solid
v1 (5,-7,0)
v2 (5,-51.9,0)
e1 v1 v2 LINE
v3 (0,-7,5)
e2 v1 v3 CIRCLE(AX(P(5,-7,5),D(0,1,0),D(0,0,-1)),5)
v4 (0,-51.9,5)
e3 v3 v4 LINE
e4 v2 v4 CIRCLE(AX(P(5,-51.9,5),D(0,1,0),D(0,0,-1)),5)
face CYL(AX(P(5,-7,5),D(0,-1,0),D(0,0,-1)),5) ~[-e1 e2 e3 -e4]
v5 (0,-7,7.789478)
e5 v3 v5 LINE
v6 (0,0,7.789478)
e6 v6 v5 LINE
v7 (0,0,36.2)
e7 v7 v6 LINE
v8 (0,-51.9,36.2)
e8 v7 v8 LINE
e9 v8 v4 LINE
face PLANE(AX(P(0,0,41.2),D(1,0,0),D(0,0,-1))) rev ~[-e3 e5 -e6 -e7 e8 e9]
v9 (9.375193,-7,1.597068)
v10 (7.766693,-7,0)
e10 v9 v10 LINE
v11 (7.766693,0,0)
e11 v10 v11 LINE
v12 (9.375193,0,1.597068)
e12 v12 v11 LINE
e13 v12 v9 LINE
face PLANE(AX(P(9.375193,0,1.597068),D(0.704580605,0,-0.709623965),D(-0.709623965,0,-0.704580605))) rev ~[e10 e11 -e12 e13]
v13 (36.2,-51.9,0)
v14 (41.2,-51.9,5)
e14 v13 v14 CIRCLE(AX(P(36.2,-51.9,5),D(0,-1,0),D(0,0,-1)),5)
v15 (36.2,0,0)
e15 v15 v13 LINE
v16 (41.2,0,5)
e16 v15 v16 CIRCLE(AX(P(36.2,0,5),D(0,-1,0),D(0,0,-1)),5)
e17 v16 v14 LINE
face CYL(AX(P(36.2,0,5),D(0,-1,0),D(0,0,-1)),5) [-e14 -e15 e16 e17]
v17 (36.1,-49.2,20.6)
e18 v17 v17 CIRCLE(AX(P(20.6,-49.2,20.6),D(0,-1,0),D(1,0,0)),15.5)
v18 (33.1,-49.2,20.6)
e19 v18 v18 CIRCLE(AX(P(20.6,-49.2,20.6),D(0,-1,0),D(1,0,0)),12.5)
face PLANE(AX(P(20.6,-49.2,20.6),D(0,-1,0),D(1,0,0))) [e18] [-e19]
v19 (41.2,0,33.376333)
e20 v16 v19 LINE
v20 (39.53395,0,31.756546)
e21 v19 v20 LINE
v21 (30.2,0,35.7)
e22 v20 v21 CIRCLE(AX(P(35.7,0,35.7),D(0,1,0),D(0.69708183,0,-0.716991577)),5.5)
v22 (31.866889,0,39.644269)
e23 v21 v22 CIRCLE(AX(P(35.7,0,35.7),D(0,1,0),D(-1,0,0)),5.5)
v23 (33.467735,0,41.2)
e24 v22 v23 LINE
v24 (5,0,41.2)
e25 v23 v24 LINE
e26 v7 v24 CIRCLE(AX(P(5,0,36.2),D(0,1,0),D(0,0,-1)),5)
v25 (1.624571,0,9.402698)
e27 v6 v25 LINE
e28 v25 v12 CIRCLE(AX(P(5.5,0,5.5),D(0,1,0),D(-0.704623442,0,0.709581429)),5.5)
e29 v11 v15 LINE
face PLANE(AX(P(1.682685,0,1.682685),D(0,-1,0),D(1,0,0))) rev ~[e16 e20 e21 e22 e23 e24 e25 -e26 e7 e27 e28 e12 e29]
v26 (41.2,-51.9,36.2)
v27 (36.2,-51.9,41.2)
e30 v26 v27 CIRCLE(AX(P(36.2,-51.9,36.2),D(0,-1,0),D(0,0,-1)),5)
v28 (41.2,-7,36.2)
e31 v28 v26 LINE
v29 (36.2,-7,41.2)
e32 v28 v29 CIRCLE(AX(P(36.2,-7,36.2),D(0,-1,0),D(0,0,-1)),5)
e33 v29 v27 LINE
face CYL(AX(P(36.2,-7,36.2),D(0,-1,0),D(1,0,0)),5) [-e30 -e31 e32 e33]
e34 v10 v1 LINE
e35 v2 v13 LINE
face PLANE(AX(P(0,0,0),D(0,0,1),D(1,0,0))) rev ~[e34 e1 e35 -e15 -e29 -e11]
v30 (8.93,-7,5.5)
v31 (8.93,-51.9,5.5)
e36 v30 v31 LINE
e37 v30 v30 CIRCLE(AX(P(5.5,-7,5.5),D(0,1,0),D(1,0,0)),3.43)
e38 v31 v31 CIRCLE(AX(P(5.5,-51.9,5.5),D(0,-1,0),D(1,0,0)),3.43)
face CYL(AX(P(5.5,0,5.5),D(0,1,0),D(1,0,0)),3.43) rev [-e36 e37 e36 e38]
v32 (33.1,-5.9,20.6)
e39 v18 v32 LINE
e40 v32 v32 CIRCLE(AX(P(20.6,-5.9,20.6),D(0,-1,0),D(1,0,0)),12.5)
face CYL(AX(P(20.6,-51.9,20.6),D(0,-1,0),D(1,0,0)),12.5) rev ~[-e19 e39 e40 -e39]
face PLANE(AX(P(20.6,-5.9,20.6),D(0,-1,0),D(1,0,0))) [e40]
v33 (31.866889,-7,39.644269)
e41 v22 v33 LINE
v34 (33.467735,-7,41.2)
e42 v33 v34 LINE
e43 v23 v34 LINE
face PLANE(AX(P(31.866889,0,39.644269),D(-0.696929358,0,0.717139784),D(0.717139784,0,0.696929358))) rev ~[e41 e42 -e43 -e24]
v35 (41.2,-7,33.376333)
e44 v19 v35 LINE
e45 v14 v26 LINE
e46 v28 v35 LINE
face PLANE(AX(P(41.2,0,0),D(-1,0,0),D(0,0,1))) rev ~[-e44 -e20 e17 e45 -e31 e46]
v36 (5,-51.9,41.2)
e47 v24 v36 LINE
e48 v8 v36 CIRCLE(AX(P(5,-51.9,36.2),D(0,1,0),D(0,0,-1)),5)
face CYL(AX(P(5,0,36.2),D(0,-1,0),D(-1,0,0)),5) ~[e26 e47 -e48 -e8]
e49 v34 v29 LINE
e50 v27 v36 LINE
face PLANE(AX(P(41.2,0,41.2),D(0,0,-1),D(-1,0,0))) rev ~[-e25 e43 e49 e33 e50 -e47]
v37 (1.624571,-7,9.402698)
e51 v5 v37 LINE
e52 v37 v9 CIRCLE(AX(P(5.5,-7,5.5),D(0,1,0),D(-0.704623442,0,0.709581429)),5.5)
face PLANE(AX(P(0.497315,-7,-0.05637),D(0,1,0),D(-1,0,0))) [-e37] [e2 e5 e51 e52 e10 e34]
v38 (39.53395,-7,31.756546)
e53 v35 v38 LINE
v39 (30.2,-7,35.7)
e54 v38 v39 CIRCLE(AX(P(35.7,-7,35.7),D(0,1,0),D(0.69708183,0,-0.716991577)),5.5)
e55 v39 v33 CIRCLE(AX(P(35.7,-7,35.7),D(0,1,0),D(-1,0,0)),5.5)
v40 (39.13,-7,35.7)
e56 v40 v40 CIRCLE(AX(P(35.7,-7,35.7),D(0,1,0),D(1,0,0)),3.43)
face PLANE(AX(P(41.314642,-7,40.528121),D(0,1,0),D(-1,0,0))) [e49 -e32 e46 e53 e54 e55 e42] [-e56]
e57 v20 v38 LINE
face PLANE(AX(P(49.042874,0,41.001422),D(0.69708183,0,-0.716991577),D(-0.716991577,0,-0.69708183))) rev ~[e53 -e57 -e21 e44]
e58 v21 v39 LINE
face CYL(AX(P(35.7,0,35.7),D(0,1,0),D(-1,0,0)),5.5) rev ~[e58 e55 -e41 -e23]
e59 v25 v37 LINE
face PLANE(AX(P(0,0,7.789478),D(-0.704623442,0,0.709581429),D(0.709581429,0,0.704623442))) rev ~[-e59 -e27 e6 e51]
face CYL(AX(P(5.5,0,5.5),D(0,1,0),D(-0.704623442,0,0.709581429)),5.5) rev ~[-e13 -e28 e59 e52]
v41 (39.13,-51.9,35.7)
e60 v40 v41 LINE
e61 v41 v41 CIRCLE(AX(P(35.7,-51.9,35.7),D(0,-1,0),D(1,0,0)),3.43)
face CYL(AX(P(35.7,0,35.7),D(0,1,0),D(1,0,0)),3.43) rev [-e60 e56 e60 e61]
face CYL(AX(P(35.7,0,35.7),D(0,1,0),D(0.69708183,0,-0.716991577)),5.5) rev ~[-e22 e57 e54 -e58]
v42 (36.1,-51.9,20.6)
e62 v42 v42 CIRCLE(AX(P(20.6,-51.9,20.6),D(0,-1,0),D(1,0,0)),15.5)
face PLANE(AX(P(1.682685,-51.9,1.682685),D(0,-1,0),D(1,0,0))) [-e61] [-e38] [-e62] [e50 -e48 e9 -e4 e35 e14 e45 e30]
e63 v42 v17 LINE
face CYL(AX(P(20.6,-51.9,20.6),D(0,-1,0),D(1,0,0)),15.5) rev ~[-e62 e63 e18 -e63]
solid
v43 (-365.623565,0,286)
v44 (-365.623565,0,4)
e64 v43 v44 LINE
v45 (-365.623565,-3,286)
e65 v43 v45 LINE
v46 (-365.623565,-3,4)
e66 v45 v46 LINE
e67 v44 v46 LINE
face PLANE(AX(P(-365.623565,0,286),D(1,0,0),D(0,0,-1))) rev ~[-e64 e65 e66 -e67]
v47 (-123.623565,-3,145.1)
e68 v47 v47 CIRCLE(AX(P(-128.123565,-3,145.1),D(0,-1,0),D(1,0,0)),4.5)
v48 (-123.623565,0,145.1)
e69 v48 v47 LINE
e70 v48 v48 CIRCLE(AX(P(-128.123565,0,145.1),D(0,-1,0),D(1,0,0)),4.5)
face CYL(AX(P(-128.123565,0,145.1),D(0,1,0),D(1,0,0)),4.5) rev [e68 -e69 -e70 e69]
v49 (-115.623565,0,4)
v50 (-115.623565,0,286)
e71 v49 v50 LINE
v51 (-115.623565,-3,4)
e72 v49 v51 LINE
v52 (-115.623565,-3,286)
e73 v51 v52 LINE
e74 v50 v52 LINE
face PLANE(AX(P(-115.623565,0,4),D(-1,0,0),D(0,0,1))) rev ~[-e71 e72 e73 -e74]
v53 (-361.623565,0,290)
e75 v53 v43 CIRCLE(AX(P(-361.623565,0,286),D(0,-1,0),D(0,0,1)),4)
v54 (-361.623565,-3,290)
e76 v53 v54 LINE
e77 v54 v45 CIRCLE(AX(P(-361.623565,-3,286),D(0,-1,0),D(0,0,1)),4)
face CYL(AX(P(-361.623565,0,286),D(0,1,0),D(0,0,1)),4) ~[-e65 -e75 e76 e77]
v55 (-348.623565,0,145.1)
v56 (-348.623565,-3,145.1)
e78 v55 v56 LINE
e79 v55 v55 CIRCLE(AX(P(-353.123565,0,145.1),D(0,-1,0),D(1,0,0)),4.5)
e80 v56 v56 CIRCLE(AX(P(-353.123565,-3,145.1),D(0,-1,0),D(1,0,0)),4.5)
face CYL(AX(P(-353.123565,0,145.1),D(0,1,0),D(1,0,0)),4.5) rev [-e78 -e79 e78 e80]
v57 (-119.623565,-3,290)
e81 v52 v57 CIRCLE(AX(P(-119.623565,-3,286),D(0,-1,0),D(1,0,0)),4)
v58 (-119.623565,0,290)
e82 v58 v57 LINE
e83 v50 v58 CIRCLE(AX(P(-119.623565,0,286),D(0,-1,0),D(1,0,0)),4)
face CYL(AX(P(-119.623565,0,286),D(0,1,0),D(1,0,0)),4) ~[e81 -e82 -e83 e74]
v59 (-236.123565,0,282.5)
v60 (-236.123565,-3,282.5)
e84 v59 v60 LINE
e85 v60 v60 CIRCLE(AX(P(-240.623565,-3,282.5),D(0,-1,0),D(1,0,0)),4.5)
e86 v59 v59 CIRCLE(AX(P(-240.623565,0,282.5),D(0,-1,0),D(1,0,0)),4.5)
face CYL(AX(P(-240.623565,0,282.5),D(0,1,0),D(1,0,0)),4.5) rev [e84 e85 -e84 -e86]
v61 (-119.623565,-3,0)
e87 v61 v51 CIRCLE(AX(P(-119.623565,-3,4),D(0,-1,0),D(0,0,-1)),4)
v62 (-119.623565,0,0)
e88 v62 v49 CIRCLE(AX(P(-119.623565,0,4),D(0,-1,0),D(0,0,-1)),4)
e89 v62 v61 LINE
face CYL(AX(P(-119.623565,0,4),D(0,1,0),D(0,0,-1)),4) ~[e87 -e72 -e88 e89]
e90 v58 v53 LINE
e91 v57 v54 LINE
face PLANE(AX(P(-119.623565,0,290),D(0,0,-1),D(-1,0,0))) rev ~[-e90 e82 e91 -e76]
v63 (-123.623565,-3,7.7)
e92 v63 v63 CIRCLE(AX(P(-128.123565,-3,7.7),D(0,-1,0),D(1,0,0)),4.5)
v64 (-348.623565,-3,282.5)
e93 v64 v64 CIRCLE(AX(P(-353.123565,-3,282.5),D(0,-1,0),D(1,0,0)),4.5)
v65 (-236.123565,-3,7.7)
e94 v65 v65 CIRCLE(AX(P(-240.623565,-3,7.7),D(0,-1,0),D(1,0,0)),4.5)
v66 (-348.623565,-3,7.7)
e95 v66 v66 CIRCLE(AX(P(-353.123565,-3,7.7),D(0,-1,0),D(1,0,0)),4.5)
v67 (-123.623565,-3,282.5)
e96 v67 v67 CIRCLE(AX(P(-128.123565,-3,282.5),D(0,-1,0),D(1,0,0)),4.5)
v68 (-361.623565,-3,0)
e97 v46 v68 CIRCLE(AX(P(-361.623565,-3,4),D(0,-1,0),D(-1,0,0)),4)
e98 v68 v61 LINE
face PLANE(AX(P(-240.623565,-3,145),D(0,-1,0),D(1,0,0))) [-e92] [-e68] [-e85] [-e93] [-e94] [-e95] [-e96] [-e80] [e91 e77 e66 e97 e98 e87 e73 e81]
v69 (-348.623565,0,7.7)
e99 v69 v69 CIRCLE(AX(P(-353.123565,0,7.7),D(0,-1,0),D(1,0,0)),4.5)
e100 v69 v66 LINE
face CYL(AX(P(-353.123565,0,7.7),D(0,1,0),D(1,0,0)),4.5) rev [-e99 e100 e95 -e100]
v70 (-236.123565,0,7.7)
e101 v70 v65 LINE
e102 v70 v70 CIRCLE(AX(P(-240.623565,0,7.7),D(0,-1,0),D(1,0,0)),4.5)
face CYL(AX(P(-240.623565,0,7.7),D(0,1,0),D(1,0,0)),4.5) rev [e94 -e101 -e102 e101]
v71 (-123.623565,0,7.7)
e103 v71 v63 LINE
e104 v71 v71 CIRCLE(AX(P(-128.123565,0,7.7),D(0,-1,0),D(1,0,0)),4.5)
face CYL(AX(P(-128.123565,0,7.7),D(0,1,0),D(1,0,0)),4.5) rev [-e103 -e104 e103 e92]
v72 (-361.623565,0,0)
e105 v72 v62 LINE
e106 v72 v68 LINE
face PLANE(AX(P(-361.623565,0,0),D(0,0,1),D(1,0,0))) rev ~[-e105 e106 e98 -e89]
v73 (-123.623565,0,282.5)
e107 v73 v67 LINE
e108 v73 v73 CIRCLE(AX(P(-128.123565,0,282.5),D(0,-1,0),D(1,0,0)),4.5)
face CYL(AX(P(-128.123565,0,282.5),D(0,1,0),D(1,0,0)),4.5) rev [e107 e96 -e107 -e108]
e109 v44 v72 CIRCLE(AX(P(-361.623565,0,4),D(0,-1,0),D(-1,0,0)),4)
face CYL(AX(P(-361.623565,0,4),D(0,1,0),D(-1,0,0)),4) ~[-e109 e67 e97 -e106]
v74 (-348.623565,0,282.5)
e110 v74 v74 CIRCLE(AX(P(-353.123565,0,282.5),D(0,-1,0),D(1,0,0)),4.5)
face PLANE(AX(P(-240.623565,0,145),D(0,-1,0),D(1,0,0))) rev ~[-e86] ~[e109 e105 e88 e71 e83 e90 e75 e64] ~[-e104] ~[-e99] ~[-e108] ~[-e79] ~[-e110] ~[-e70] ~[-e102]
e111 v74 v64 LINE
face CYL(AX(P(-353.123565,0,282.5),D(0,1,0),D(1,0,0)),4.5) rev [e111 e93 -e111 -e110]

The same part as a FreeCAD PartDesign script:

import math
import FreeCAD as App
import Part
import Sketcher
from FreeCAD import Vector


def edges_at(feature, points):
    """Names of the edges that pass closest to the given points."""
    edges = feature.Shape.Edges
    near = lambda p: min(range(len(edges)), key=lambda i: edges[i].distToShape(Part.Vertex(*p))[0])
    return sorted({f"Edge{near(p) + 1}" for p in points})


def add_polygon(sketch, points):
    """Adds a closed chain of lines whose ends are joined by coincident constraints."""
    first, n = sketch.GeometryCount, len(points)
    for a, b in zip(points, points[1:] + points[:1]):
        sketch.addGeometry(Part.LineSegment(App.Vector(*a, 0), App.Vector(*b, 0)), False)
    for i in range(n):
        sketch.addConstraint(Sketcher.Constraint("Coincident", first + i, 2, first + (i + 1) % n, 1))

doc = App.newDocument("Part")
body = doc.addObject("PartDesign::Body", "Body")

sketch1 = body.newObject("Sketcher::SketchObject", "Sketch")
sketch1.AttachmentSupport = (doc.getObject("XZ_Plane"), [""])
sketch1.MapMode = "FlatFace"
add_polygon(sketch1, [(0, 0), (41.2, 0), (41.2, 41.2), (0, 41.2)])
sketch1.addGeometry(Part.Circle(Vector(5.5, 5.5, 0), Vector(0, 0, 1), 3.43), False)
sketch1.addGeometry(Part.Circle(Vector(35.7, 35.7, 0), Vector(0, 0, 1), 3.43), False)
sketch1.addConstraint(Sketcher.Constraint("Horizontal", 0))
sketch1.addConstraint(Sketcher.Constraint("Vertical", 1))
sketch1.addConstraint(Sketcher.Constraint("Horizontal", 2))
sketch1.addConstraint(Sketcher.Constraint("Vertical", 3))
sketch1.addConstraint(Sketcher.Constraint("Coincident", 3, 2, -1, 1))
sketch1.addConstraint(Sketcher.Constraint("Equal", 4, 5))
sketch1.addConstraint(Sketcher.Constraint("Equal", 2, 1))
sketch1.addConstraint(Sketcher.Constraint("Diameter", 4, 6.86))
sketch1.addConstraint(Sketcher.Constraint("DistanceX", 0, 1, 0, 2, 41.2))
sketch1.addConstraint(Sketcher.Constraint("DistanceX", -1, 1, 4, 3, 5.5))
sketch1.addConstraint(Sketcher.Constraint("DistanceY", -1, 1, 4, 3, 5.5))
sketch1.addConstraint(Sketcher.Constraint("DistanceX", -1, 1, 5, 3, 35.7))
sketch1.addConstraint(Sketcher.Constraint("DistanceY", -1, 1, 5, 3, 35.7))
pad1 = body.newObject("PartDesign::Pad", "Pad")
pad1.Profile = sketch1
pad1.Length = 51.9

sketch2 = body.newObject("Sketcher::SketchObject", "Sketch001")
sketch2.AttachmentSupport = (doc.getObject("XZ_Plane"), [""])
sketch2.MapMode = "FlatFace"
sketch2.addGeometry(Part.LineSegment(Vector(-7.844288, 0, 0), Vector(0, 7.789478, 0)), False)
sketch2.addGeometry(Part.LineSegment(Vector(0, 7.789478, 0), Vector(1.624571, 9.402698, 0)), False)
sketch2.addGeometry(Part.ArcOfCircle(Part.Circle(Vector(5.5, 5.5, 0), Vector(0, 0, 1), 5.5), math.radians(-45.204328), math.radians(134.799131)), False)
sketch2.addGeometry(Part.LineSegment(Vector(9.375193, 1.597068, 0), Vector(0, -7.711495, 0)), False)
sketch2.addGeometry(Part.LineSegment(Vector(0, -7.711495, 0), Vector(-7.844288, 0, 0)), False)
sketch2.addGeometry(Part.LineSegment(Vector(49.042874, 41.001422, 0), Vector(39.53395, 31.756546, 0)), False)
sketch2.addGeometry(Part.ArcOfCircle(Part.Circle(Vector(35.7, 35.7, 0), Vector(0, 0, 1), 5.5), math.radians(180), math.radians(314.193345)), False)
sketch2.addGeometry(Part.ArcOfCircle(Part.Circle(Vector(35.7, 35.7, 0), Vector(0, 0, 1), 5.5), math.radians(134.181162), math.radians(180)), False)
sketch2.addGeometry(Part.LineSegment(Vector(31.866889, 39.644269, 0), Vector(33.467735, 41.2, 0)), False)
sketch2.addGeometry(Part.LineSegment(Vector(33.467735, 41.2, 0), Vector(41.2, 48.714355, 0)), False)
sketch2.addGeometry(Part.LineSegment(Vector(41.2, 48.714355, 0), Vector(49.042874, 41.001422, 0)), False)
sketch2.addConstraint(Sketcher.Constraint("Coincident", 0, 2, 1, 1))
sketch2.addConstraint(Sketcher.Constraint("Tangent", 1, 2, 2, 2))
sketch2.addConstraint(Sketcher.Constraint("Tangent", 2, 1, 3, 1))
sketch2.addConstraint(Sketcher.Constraint("Coincident", 3, 2, 4, 1))
sketch2.addConstraint(Sketcher.Constraint("Coincident", 4, 2, 0, 1))
sketch2.addConstraint(Sketcher.Constraint("Tangent", 5, 2, 6, 2))
sketch2.addConstraint(Sketcher.Constraint("Tangent", 6, 1, 7, 2))
sketch2.addConstraint(Sketcher.Constraint("Tangent", 7, 1, 8, 1))
sketch2.addConstraint(Sketcher.Constraint("Coincident", 8, 2, 9, 1))
sketch2.addConstraint(Sketcher.Constraint("Coincident", 9, 2, 10, 1))
sketch2.addConstraint(Sketcher.Constraint("Coincident", 10, 2, 5, 1))
sketch2.addConstraint(Sketcher.Constraint("Equal", 2, 6))
sketch2.addConstraint(Sketcher.Constraint("Equal", 6, 7))
sketch2.addConstraint(Sketcher.Constraint("PointOnObject", 0, 2, -2))
sketch2.addConstraint(Sketcher.Constraint("PointOnObject", 3, 2, -2))
sketch2.addConstraint(Sketcher.Constraint("PointOnObject", 4, 2, -1))
sketch2.addConstraint(Sketcher.Constraint("Parallel", 0, 1))
sketch2.addConstraint(Sketcher.Constraint("Parallel", 8, 9))
sketch2.addConstraint(Sketcher.Constraint("Horizontal", 7, 3, 6, 1))
sketch2.addConstraint(Sketcher.Constraint("Equal", 4, 10))
sketch2.addConstraint(Sketcher.Constraint("Radius", 2, 5.5))
sketch2.addConstraint(Sketcher.Constraint("Distance", 4, 11.0))
sketch2.addConstraint(Sketcher.Constraint("DistanceX", -1, 1, 2, 3, 5.5))
sketch2.addConstraint(Sketcher.Constraint("DistanceY", -1, 1, 2, 3, 5.5))
sketch2.addConstraint(Sketcher.Constraint("DistanceX", -1, 1, 6, 3, 35.7))
sketch2.addConstraint(Sketcher.Constraint("DistanceY", -1, 1, 6, 3, 35.7))
sketch2.addConstraint(Sketcher.Constraint("DistanceY", -1, 1, 8, 2, 41.2))
sketch2.addConstraint(Sketcher.Constraint("DistanceX", -1, 1, 9, 2, 41.2))
sketch2.addConstraint(Sketcher.Constraint("Distance", 0, 11.05481))
sketch2.addConstraint(Sketcher.Constraint("Distance", 9, 10.782089))
sketch2.addConstraint(Sketcher.Constraint("DistanceX", -1, 1, 5, 2, 39.53395))
pocket1 = body.newObject("PartDesign::Pocket", "Pocket")
pocket1.Profile = sketch2
pocket1.Length = 7
pocket1.Reversed = True

sketch3 = body.newObject("Sketcher::SketchObject", "Sketch002")
sketch3.AttachmentSupport = (doc.getObject("XZ_Plane"), [""])
sketch3.MapMode = "FlatFace"
sketch3.AttachmentOffset = App.Placement(Vector(0, 0, 51.9), App.Rotation())
sketch3.addGeometry(Part.Circle(Vector(20.6, 20.6, 0), Vector(0, 0, 1), 12.5), False)
sketch3.addConstraint(Sketcher.Constraint("Diameter", 0, 25.0))
sketch3.addConstraint(Sketcher.Constraint("DistanceX", -1, 1, 0, 3, 20.6))
sketch3.addConstraint(Sketcher.Constraint("DistanceY", -1, 1, 0, 3, 20.6))
pocket2 = body.newObject("PartDesign::Pocket", "Pocket001")
pocket2.Profile = sketch3
pocket2.Length = 46
doc.recompute()

fillet = body.newObject("PartDesign::Fillet", "Fillet")
fillet.Base = (pocket2, edges_at(pocket2, [
    (41.2, -25.95, 0),
    (0, -25.95, 41.2),
    (41.2, -29.45, 41.2),
    (0, -29.45, 0),
]))
fillet.Radius = 5

sketch4 = body.newObject("Sketcher::SketchObject", "Sketch003")
sketch4.AttachmentSupport = (doc.getObject("XZ_Plane"), [""])
sketch4.MapMode = "FlatFace"
sketch4.AttachmentOffset = App.Placement(Vector(0, 0, 51.9), App.Rotation())
sketch4.addGeometry(Part.Circle(Vector(20.6, 20.6, 0), Vector(0, 0, 1), 15.5), False)
sketch4.addGeometry(Part.Circle(Vector(20.6, 20.6, 0), Vector(0, 0, 1), 12.5), False)
sketch4.addConstraint(Sketcher.Constraint("Coincident", 1, 3, 0, 3))
sketch4.addConstraint(Sketcher.Constraint("Diameter", 0, 31.0))
sketch4.addConstraint(Sketcher.Constraint("Diameter", 1, 25.0))
sketch4.addConstraint(Sketcher.Constraint("DistanceX", -1, 1, 0, 3, 20.6))
sketch4.addConstraint(Sketcher.Constraint("DistanceY", -1, 1, 0, 3, 20.6))
pocket3 = body.newObject("PartDesign::Pocket", "Pocket002")
pocket3.Profile = sketch4
pocket3.Length = 2.7
body2 = doc.addObject("PartDesign::Body", "Body001")

sketch5 = body2.newObject("Sketcher::SketchObject", "Sketch004")
sketch5.AttachmentSupport = (doc.getObject("XZ_Plane001"), [""])
sketch5.MapMode = "FlatFace"
sketch5.addGeometry(Part.ArcOfCircle(Part.Circle(Vector(-361.623565, 4, 0), Vector(0, 0, 1), 4), math.radians(180), math.radians(270)), False)
sketch5.addGeometry(Part.LineSegment(Vector(-361.623565, 0, 0), Vector(-119.623565, 0, 0)), False)
sketch5.addGeometry(Part.ArcOfCircle(Part.Circle(Vector(-119.623565, 4, 0), Vector(0, 0, 1), 4), math.radians(-90), math.radians(0)), False)
sketch5.addGeometry(Part.LineSegment(Vector(-115.623565, 4, 0), Vector(-115.623565, 286, 0)), False)
sketch5.addGeometry(Part.ArcOfCircle(Part.Circle(Vector(-119.623565, 286, 0), Vector(0, 0, 1), 4), math.radians(0), math.radians(90)), False)
sketch5.addGeometry(Part.LineSegment(Vector(-119.623565, 290, 0), Vector(-361.623565, 290, 0)), False)
sketch5.addGeometry(Part.ArcOfCircle(Part.Circle(Vector(-361.623565, 286, 0), Vector(0, 0, 1), 4), math.radians(90), math.radians(180)), False)
sketch5.addGeometry(Part.LineSegment(Vector(-365.623565, 286, 0), Vector(-365.623565, 4, 0)), False)
sketch5.addGeometry(Part.Circle(Vector(-353.123565, 7.7, 0), Vector(0, 0, 1), 4.5), False)
sketch5.addGeometry(Part.Circle(Vector(-240.623565, 7.7, 0), Vector(0, 0, 1), 4.5), False)
sketch5.addGeometry(Part.Circle(Vector(-128.123565, 7.7, 0), Vector(0, 0, 1), 4.5), False)
sketch5.addGeometry(Part.Circle(Vector(-353.123565, 145.1, 0), Vector(0, 0, 1), 4.5), False)
sketch5.addGeometry(Part.Circle(Vector(-353.123565, 282.5, 0), Vector(0, 0, 1), 4.5), False)
sketch5.addGeometry(Part.Circle(Vector(-128.123565, 145.1, 0), Vector(0, 0, 1), 4.5), False)
sketch5.addGeometry(Part.Circle(Vector(-240.623565, 282.5, 0), Vector(0, 0, 1), 4.5), False)
sketch5.addGeometry(Part.Circle(Vector(-128.123565, 282.5, 0), Vector(0, 0, 1), 4.5), False)
sketch5.addConstraint(Sketcher.Constraint("Tangent", 0, 2, 1, 1))
sketch5.addConstraint(Sketcher.Constraint("Tangent", 1, 2, 2, 1))
sketch5.addConstraint(Sketcher.Constraint("Tangent", 2, 2, 3, 1))
sketch5.addConstraint(Sketcher.Constraint("Tangent", 3, 2, 4, 1))
sketch5.addConstraint(Sketcher.Constraint("Tangent", 4, 2, 5, 1))
sketch5.addConstraint(Sketcher.Constraint("Tangent", 5, 2, 6, 1))
sketch5.addConstraint(Sketcher.Constraint("Tangent", 6, 2, 7, 1))
sketch5.addConstraint(Sketcher.Constraint("Tangent", 7, 2, 0, 1))
sketch5.addConstraint(Sketcher.Constraint("Horizontal", 1))
sketch5.addConstraint(Sketcher.Constraint("Vertical", 3))
sketch5.addConstraint(Sketcher.Constraint("Horizontal", 5))
sketch5.addConstraint(Sketcher.Constraint("Vertical", 7))
sketch5.addConstraint(Sketcher.Constraint("Equal", 0, 2))
sketch5.addConstraint(Sketcher.Constraint("Equal", 2, 4))
sketch5.addConstraint(Sketcher.Constraint("Equal", 4, 6))
sketch5.addConstraint(Sketcher.Constraint("Equal", 8, 9))
sketch5.addConstraint(Sketcher.Constraint("Equal", 9, 10))
sketch5.addConstraint(Sketcher.Constraint("Equal", 10, 11))
sketch5.addConstraint(Sketcher.Constraint("Equal", 11, 12))
sketch5.addConstraint(Sketcher.Constraint("Equal", 12, 13))
sketch5.addConstraint(Sketcher.Constraint("Equal", 13, 14))
sketch5.addConstraint(Sketcher.Constraint("Equal", 14, 15))
sketch5.addConstraint(Sketcher.Constraint("PointOnObject", 0, 2, -1))
sketch5.addConstraint(Sketcher.Constraint("Horizontal", 8, 3, 9, 3))
sketch5.addConstraint(Sketcher.Constraint("Horizontal", 9, 3, 10, 3))
sketch5.addConstraint(Sketcher.Constraint("Horizontal", 11, 3, 13, 3))
sketch5.addConstraint(Sketcher.Constraint("Horizontal", 12, 3, 14, 3))
sketch5.addConstraint(Sketcher.Constraint("Horizontal", 14, 3, 15, 3))
sketch5.addConstraint(Sketcher.Constraint("Vertical", 8, 3, 11, 3))
sketch5.addConstraint(Sketcher.Constraint("Vertical", 11, 3, 12, 3))
sketch5.addConstraint(Sketcher.Constraint("Vertical", 10, 3, 13, 3))
sketch5.addConstraint(Sketcher.Constraint("Vertical", 9, 3, 14, 3))
sketch5.addConstraint(Sketcher.Constraint("Vertical", 13, 3, 15, 3))
sketch5.addConstraint(Sketcher.Constraint("Diameter", 8, 9.0))
sketch5.addConstraint(Sketcher.Constraint("Radius", 0, 4.0))
sketch5.addConstraint(Sketcher.Constraint("DistanceX", 1, 1, 1, 2, 242.0))
sketch5.addConstraint(Sketcher.Constraint("DistanceY", 3, 1, 3, 2, 282.0))
sketch5.addConstraint(Sketcher.Constraint("DistanceX", 0, 3, 9, 3, 121.0))
sketch5.addConstraint(Sketcher.Constraint("DistanceX", 8, 3, 10, 3, 225.0))
sketch5.addConstraint(Sketcher.Constraint("DistanceY", -1, 1, 8, 3, 7.7))
sketch5.addConstraint(Sketcher.Constraint("DistanceY", -1, 1, 11, 3, 145.1))
sketch5.addConstraint(Sketcher.Constraint("DistanceY", -1, 1, 12, 3, 282.5))
sketch5.addConstraint(Sketcher.Constraint("DistanceX", 0, 3, 8, 3, 8.5))
sketch5.addConstraint(Sketcher.Constraint("DistanceX", 0, 3, -1, 1, 361.623565))
pad2 = body2.newObject("PartDesign::Pad", "Pad001")
pad2.Profile = sketch5
pad2.Length = 3

doc.recompute()
